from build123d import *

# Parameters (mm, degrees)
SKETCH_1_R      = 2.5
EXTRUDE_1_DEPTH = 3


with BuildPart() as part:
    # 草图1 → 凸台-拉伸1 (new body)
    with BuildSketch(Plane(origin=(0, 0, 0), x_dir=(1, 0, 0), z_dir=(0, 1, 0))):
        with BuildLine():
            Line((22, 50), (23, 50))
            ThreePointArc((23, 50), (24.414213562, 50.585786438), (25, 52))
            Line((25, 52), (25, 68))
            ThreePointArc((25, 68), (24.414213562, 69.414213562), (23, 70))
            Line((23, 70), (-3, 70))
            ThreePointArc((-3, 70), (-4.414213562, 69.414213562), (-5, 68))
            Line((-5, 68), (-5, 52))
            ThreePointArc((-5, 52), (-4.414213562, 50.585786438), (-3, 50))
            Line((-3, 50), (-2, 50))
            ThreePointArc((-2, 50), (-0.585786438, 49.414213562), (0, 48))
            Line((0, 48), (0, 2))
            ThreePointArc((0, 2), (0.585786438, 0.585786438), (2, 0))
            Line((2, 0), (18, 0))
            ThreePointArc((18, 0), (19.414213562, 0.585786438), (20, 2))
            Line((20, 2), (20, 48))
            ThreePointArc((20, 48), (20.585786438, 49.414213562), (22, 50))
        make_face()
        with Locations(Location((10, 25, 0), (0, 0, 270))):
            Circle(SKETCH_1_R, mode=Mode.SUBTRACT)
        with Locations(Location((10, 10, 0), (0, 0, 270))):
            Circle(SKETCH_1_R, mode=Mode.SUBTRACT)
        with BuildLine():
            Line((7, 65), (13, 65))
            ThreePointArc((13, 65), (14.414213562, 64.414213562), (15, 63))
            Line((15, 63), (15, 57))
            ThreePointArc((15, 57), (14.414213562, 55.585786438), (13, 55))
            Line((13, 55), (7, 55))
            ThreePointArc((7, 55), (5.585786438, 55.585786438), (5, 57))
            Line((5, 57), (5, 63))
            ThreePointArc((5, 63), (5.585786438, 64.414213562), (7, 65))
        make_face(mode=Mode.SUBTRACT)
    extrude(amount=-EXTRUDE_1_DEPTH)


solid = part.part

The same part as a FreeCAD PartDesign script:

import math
import FreeCAD as App
import Part
import Sketcher
from FreeCAD import Vector

doc = App.newDocument("Part")
body = doc.addObject("PartDesign::Body", "Body")

# Sketch on XZ plane
sketch1 = doc.addObject("Sketcher::SketchObject", "Sketch")
body.addObject(sketch1)
sketch1.AttachmentSupport = (doc.XZ_Plane, [""])
sketch1.MapMode = "FlatFace"
sketch1.addGeometry([
    Part.LineSegment(Vector(22, -50, 0), Vector(23, -50, 0)),  # 0
    Part.ArcOfCircle(Part.Circle(Vector(23, -52, 0), Vector(0, 0, 1), 2), math.radians(0), math.radians(90)),  # 1
    Part.LineSegment(Vector(25, -52, 0), Vector(25, -68, 0)),  # 2
    Part.ArcOfCircle(Part.Circle(Vector(23, -68, 0), Vector(0, 0, 1), 2), math.radians(-90), math.radians(0)),  # 3
    Part.LineSegment(Vector(23, -70, 0), Vector(-3, -70, 0)),  # 4
    Part.ArcOfCircle(Part.Circle(Vector(-3, -68, 0), Vector(0, 0, 1), 2), math.radians(-180), math.radians(-90)),  # 5
    Part.LineSegment(Vector(-5, -68, 0), Vector(-5, -52, 0)),  # 6
    Part.ArcOfCircle(Part.Circle(Vector(-3, -52, 0), Vector(0, 0, 1), 2), math.radians(90), math.radians(180)),  # 7
    Part.LineSegment(Vector(-3, -50, 0), Vector(-2, -50, 0)),  # 8
    Part.ArcOfCircle(Part.Circle(Vector(-2, -48, 0), Vector(0, 0, 1), 2), math.radians(-90), math.radians(0)),  # 9
    Part.LineSegment(Vector(0, -48, 0), Vector(0, -2, 0)),  # 10
    Part.ArcOfCircle(Part.Circle(Vector(2, -2, 0), Vector(0, 0, 1), 2), math.radians(90), math.radians(180)),  # 11
    Part.LineSegment(Vector(2, 0, 0), Vector(18, 0, 0)),  # 12
    Part.ArcOfCircle(Part.Circle(Vector(18, -2, 0), Vector(0, 0, 1), 2), math.radians(0), math.radians(90)),  # 13
    Part.LineSegment(Vector(20, -2, 0), Vector(20, -48, 0)),  # 14
    Part.ArcOfCircle(Part.Circle(Vector(22, -48, 0), Vector(0, 0, 1), 2), math.radians(-180), math.radians(-90)),  # 15
    Part.Circle(Vector(10, -10, 0), Vector(0, 0, 1), 2.5),  # 16
    Part.Circle(Vector(10, -25, 0), Vector(0, 0, 1), 2.5),  # 17
    Part.ArcOfCircle(Part.Circle(Vector(7, -63, 0), Vector(0, 0, 1), 2), math.radians(-180), math.radians(-90)),  # 18
    Part.LineSegment(Vector(7, -65, 0), Vector(13, -65, 0)),  # 19
    Part.ArcOfCircle(Part.Circle(Vector(13, -63, 0), Vector(0, 0, 1), 2), math.radians(-90), math.radians(0)),  # 20
    Part.LineSegment(Vector(15, -63, 0), Vector(15, -57, 0)),  # 21
    Part.ArcOfCircle(Part.Circle(Vector(13, -57, 0), Vector(0, 0, 1), 2), math.radians(0), math.radians(90)),  # 22
    Part.LineSegment(Vector(13, -55, 0), Vector(7, -55, 0)),  # 23
    Part.ArcOfCircle(Part.Circle(Vector(7, -57, 0), Vector(0, 0, 1), 2), math.radians(90), math.radians(180)),  # 24
    Part.LineSegment(Vector(5, -57, 0), Vector(5, -63, 0)),  # 25
], False)
sketch1.addConstraint([
    Sketcher.Constraint("Tangent", 0, 2, 1, 2),
    Sketcher.Constraint("Tangent", 1, 1, 2, 1),
    Sketcher.Constraint("Tangent", 2, 2, 3, 2),
    Sketcher.Constraint("Tangent", 3, 1, 4, 1),
    Sketcher.Constraint("Tangent", 4, 2, 5, 2),
    Sketcher.Constraint("Tangent", 5, 1, 6, 1),
    Sketcher.Constraint("Tangent", 6, 2, 7, 2),
    Sketcher.Constraint("Tangent", 7, 1, 8, 1),
    Sketcher.Constraint("Tangent", 8, 2, 9, 1),
    Sketcher.Constraint("Tangent", 9, 2, 10, 1),
    Sketcher.Constraint("Tangent", 10, 2, 11, 2),
    Sketcher.Constraint("Tangent", 11, 1, 12, 1),
    Sketcher.Constraint("Tangent", 12, 2, 13, 2),
    Sketcher.Constraint("Tangent", 13, 1, 14, 1),
    Sketcher.Constraint("Tangent", 14, 2, 15, 1),
    Sketcher.Constraint("Tangent", 15, 2, 0, 1),
    Sketcher.Constraint("Tangent", 18, 2, 19, 1),
    Sketcher.Constraint("Tangent", 19, 2, 20, 1),
    Sketcher.Constraint("Tangent", 20, 2, 21, 1),
    Sketcher.Constraint("Tangent", 21, 2, 22, 1),
    Sketcher.Constraint("Tangent", 22, 2, 23, 1),
    Sketcher.Constraint("Tangent", 23, 2, 24, 1),
    Sketcher.Constraint("Tangent", 24, 2, 25, 1),
    Sketcher.Constraint("Tangent", 25, 2, 18, 1),
    Sketcher.Constraint("Horizontal", 0),
    Sketcher.Constraint("Vertical", 2),
    Sketcher.Constraint("Horizontal", 4),
    Sketcher.Constraint("Vertical", 6),
    Sketcher.Constraint("Horizontal", 8),
    Sketcher.Constraint("Vertical", 10),
    Sketcher.Constraint("Horizontal", 12),
    Sketcher.Constraint("Vertical", 14),
    Sketcher.Constraint("Horizontal", 19),
    Sketcher.Constraint("Vertical", 21),
    Sketcher.Constraint("Horizontal", 23),
    Sketcher.Constraint("Vertical", 25),
    Sketcher.Constraint("Equal", 1, 3),
    Sketcher.Constraint("Equal", 3, 5),
    Sketcher.Constraint("Equal", 5, 7),
    Sketcher.Constraint("Equal", 7, 9),
    Sketcher.Constraint("Equal", 9, 11),
    Sketcher.Constraint("Equal", 11, 13),
    Sketcher.Constraint("Equal", 13, 15),
    Sketcher.Constraint("Equal", 16, 17),
    Sketcher.Constraint("Equal", 15, 18),
    Sketcher.Constraint("Equal", 18, 20),
    Sketcher.Constraint("Equal", 20, 22),
    Sketcher.Constraint("Equal", 22, 24),
    Sketcher.Constraint("PointOnObject", 9, 2, -2),
    Sketcher.Constraint("PointOnObject", 11, 1, -1),
    Sketcher.Constraint("Horizontal", 1, 3, 7, 3),
    Sketcher.Constraint("Vertical", 16, 3, 17, 3),
    Sketcher.Constraint("Equal", 0, 8),
    Sketcher.Constraint("Equal", 12, 2),
    Sketcher.Constraint("Equal", 23, 21),
    Sketcher.Constraint("Diameter", 16, 5.0),
    Sketcher.Constraint("Radius", 1, 2.0),
    Sketcher.Constraint("DistanceX", 0, 1, 0, 2, 1.0),
    Sketcher.Constraint("DistanceX", 4, 2, 4, 1, 26.0),
    Sketcher.Constraint("DistanceX", 19, 1, 19, 2, 6.0),
    Sketcher.Constraint("DistanceY", 10, 1, 10, 2, 46.0),
    Sketcher.Constraint("DistanceX", -1, 1, 16, 3, 10.0),
    Sketcher.Constraint("DistanceY", 16, 3, -1, 1, 10.0),
    Sketcher.Constraint("DistanceY", 17, 3, -1, 1, 25.0),
    Sketcher.Constraint("DistanceX", -1, 1, 18, 3, 7.0),
    Sketcher.Constraint("DistanceY", 18, 3, -1, 1, 63.0),
])
pad1 = doc.addObject("PartDesign::Pad", "Pad")
body.addObject(pad1)
pad1.Profile = sketch1
pad1.Length = 3

doc.recompute()
